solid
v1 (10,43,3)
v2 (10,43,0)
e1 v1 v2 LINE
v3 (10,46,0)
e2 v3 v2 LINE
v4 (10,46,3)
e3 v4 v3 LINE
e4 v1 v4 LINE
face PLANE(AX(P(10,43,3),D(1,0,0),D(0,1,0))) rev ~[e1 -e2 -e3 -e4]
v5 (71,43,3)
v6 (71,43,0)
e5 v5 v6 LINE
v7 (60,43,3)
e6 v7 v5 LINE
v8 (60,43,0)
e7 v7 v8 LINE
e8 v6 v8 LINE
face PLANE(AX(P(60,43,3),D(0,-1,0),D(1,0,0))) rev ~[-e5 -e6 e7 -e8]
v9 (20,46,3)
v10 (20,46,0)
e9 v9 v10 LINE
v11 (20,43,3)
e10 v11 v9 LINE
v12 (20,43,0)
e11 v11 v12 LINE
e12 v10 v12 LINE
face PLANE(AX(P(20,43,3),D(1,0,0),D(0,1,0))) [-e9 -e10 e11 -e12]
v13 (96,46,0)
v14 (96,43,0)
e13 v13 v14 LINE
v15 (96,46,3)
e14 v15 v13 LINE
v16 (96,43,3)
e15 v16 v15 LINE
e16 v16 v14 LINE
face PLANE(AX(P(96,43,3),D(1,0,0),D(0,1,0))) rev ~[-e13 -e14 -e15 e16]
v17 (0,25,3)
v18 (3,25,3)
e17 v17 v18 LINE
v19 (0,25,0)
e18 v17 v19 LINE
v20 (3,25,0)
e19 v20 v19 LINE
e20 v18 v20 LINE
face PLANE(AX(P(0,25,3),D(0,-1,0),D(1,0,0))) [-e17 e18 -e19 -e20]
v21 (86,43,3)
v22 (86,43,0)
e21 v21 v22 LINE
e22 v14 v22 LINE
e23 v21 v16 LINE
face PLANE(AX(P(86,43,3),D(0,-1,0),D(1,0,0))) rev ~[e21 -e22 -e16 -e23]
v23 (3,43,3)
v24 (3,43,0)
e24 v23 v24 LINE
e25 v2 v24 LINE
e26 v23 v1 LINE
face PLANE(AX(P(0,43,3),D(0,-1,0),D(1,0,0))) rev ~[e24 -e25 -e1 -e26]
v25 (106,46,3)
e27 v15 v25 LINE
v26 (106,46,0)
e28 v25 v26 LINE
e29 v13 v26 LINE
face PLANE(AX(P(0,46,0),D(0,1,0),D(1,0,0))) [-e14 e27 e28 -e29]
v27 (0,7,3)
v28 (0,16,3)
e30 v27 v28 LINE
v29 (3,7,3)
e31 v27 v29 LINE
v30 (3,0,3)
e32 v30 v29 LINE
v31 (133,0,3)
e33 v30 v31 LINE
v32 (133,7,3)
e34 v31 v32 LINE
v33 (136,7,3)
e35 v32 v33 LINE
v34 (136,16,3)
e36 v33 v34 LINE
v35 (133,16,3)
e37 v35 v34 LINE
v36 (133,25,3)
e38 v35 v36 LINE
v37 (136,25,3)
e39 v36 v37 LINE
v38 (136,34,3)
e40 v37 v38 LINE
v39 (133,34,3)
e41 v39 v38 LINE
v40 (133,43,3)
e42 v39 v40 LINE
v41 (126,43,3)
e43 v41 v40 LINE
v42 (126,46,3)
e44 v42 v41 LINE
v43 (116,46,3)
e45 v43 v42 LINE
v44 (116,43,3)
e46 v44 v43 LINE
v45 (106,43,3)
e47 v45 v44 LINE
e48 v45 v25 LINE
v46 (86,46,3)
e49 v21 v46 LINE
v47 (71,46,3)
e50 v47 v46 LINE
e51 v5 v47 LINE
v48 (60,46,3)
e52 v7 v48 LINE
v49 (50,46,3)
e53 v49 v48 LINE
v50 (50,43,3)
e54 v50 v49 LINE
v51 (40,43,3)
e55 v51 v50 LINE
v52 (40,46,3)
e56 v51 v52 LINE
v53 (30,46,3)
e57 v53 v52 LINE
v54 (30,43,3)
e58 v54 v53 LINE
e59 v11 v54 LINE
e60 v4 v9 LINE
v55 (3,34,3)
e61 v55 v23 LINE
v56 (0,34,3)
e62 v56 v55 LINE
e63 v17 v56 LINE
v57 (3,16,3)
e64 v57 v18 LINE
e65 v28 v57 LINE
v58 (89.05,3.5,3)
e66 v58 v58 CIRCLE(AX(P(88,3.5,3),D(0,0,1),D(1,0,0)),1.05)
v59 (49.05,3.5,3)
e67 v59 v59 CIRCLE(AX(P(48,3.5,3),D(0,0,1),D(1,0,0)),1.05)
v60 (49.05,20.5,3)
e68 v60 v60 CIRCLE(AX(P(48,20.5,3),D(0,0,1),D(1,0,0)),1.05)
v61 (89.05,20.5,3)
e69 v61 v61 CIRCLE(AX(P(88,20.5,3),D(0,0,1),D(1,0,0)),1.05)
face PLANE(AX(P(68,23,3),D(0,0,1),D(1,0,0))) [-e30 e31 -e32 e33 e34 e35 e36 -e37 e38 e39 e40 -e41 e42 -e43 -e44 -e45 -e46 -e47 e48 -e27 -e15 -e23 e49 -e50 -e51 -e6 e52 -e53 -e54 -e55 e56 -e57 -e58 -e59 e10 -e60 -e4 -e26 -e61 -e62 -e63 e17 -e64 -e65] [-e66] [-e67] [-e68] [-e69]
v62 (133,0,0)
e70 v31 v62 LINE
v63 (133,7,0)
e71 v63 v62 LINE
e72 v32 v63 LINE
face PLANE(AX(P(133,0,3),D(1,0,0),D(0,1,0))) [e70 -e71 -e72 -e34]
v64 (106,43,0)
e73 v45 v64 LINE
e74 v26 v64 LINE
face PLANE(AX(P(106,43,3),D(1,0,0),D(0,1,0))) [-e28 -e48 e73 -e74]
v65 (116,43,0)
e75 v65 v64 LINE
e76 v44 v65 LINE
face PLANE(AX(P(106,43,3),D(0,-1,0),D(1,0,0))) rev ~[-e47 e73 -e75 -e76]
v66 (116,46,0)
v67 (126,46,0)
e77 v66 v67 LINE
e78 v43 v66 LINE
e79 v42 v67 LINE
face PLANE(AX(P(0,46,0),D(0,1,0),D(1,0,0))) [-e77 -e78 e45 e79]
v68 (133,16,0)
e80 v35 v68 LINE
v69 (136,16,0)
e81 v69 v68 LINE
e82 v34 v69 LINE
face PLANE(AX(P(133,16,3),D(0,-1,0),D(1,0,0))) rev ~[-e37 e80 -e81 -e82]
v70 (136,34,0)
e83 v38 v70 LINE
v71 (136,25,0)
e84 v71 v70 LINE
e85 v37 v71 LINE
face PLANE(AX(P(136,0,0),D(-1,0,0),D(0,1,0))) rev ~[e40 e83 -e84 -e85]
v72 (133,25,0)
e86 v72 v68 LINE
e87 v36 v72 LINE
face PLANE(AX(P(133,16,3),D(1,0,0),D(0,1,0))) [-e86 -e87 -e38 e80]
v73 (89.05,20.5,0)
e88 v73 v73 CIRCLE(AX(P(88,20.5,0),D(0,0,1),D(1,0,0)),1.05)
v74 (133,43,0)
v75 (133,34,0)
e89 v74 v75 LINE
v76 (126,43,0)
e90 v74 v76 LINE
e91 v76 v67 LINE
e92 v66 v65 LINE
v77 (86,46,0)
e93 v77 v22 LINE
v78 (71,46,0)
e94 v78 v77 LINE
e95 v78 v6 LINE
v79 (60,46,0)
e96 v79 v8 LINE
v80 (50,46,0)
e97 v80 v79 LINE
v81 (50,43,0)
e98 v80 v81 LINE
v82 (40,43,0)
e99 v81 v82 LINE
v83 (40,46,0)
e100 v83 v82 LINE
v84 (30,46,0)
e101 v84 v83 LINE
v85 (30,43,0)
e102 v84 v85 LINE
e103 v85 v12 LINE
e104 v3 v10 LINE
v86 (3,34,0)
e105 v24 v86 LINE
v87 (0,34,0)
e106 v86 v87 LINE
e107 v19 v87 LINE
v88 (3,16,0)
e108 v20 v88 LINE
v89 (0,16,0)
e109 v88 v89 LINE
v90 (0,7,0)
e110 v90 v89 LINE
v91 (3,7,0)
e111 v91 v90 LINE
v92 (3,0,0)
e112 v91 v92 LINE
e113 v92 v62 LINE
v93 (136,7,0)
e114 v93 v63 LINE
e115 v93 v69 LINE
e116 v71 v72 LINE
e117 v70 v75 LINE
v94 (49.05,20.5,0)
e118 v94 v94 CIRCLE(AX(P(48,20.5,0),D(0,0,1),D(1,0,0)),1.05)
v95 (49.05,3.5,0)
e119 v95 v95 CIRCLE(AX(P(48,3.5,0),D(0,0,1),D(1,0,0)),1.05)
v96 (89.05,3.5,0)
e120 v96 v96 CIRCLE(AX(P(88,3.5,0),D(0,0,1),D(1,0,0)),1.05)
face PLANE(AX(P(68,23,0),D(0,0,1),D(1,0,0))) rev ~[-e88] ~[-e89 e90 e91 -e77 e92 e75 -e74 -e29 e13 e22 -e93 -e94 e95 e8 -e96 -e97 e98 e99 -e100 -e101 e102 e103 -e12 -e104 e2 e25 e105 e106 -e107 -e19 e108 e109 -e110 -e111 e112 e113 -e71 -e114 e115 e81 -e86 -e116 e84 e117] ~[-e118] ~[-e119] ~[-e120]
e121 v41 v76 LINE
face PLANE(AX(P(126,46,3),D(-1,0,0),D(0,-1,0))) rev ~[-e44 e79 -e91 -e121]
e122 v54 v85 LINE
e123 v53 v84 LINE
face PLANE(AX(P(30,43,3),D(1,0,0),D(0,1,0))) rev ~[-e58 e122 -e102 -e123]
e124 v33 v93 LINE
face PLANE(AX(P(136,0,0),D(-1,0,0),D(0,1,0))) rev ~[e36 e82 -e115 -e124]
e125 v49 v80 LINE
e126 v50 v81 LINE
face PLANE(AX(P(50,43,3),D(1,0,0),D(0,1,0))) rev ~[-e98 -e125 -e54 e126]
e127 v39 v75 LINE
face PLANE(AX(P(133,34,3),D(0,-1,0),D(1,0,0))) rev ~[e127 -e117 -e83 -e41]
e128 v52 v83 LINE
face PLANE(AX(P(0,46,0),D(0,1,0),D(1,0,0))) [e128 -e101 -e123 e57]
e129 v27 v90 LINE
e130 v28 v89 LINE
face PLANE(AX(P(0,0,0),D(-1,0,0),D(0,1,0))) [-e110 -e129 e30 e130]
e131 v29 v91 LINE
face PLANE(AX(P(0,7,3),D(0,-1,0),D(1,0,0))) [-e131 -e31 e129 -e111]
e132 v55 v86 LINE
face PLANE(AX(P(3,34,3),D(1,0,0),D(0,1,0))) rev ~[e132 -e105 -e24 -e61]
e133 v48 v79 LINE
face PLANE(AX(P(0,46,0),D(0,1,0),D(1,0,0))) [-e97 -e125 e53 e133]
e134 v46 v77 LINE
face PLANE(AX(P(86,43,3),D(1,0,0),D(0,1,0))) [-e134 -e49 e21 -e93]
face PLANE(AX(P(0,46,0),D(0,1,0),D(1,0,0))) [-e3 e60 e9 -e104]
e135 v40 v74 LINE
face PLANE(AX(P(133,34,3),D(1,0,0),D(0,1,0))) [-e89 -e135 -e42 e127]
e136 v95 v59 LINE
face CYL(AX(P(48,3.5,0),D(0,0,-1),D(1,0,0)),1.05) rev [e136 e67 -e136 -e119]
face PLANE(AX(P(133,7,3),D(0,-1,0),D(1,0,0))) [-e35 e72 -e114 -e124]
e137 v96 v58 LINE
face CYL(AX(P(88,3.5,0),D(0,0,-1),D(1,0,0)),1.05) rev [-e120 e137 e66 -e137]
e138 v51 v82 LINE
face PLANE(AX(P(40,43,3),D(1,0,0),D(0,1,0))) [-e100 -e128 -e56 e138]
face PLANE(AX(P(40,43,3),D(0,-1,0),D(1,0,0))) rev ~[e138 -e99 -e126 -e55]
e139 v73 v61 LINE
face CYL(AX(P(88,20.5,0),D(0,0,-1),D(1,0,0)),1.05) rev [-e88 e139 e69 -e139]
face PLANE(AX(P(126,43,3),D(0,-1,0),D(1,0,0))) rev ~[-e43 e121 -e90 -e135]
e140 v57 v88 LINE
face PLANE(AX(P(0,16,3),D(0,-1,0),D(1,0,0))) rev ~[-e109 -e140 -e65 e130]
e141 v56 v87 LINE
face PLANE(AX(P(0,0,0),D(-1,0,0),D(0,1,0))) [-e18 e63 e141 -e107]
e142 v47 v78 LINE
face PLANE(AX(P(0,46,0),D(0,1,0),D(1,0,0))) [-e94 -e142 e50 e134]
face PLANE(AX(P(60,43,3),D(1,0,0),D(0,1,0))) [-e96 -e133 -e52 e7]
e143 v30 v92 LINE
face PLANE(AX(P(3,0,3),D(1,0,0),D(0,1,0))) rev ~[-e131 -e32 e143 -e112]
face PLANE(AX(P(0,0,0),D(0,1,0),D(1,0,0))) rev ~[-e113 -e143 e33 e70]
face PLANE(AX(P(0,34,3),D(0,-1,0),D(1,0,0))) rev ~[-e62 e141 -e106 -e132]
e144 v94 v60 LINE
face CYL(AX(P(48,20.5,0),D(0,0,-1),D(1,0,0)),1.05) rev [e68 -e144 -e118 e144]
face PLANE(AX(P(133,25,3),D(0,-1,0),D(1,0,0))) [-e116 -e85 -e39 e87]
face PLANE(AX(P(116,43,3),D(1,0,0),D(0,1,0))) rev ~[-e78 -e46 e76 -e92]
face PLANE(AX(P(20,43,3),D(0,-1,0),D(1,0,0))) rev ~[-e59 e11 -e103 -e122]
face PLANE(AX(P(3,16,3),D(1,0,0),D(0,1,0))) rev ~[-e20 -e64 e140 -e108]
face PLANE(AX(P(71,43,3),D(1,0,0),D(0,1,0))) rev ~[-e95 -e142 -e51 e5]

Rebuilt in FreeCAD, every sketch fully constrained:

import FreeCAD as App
import Part
import Sketcher
Q = App.Units.Quantity

doc = App.newDocument("Part")
params = doc.addObject("Spreadsheet::Sheet", "Params")
for row, (alias, value) in enumerate([
    ("sketch1_diameter", "2.1 mm"),
    ("sketch1_width", "136 mm"),
    ("sketch1_height", "46 mm"),
    ("pad1_length", "3 mm"),
    ("sketch2_width", "10 mm"),
    ("sketch2_height", "3 mm"),
    ("sketch3_width", "3 mm"),
    ("sketch3_height", "9 mm"),
    ("sketch4_width", "3 mm"),
    ("sketch4_height", "9 mm"),
    ("sketch5_width", "3 mm"),
    ("sketch5_height", "7 mm"),
    ("sketch6_width", "10 mm"),
    ("sketch6_height", "3 mm"),
    ("sketch7_width", "10 mm"),
    ("sketch7_height", "3 mm"),
    ("sketch8_width", "11 mm"),
    ("sketch8_height", "3 mm"),
    ("sketch9_width", "10 mm"),
    ("sketch9_height", "3 mm"),
    ("sketch10_width", "10 mm"),
    ("sketch10_height", "3 mm"),
    ("sketch11_width", "10 mm"),
    ("sketch11_height", "3 mm"),
    ("sketch12_width", "3 mm"),
    ("sketch12_height", "9 mm"),
    ("sketch13_width", "3 mm"),
    ("sketch13_height", "9 mm"),
    ("sketch14_width", "3 mm"),
    ("sketch14_height", "7 mm"),
], start=1):
    params.set(f"A{row}", alias)
    params.set(f"B{row}", "=" + value)
    params.setAlias(f"B{row}", alias)

body = doc.addObject("PartDesign::Body", "Body")

# Sketch on XY plane
sketch1 = body.newObject("Sketcher::SketchObject", "Sketch")
sketch1.AttachmentSupport = (doc.getObject("XY_Plane"), [""])
sketch1.MapMode = "FlatFace"
sketch1.addGeometry([
    Part.LineSegment(App.Vector(0, 46, 0), App.Vector(0, 0, 0)),  # 0
    Part.LineSegment(App.Vector(0, 0, 0), App.Vector(136, 0, 0)),  # 1
    Part.LineSegment(App.Vector(136, 0, 0), App.Vector(136, 46, 0)),  # 2
    Part.LineSegment(App.Vector(136, 46, 0), App.Vector(0, 46, 0)),  # 3
    Part.Circle(App.Vector(48, 3.5, 0), App.Vector(0, 0, 1), 1.05),  # 4
    Part.Circle(App.Vector(88, 3.5, 0), App.Vector(0, 0, 1), 1.05),  # 5
    Part.Circle(App.Vector(48, 20.5, 0), App.Vector(0, 0, 1), 1.05),  # 6
    Part.Circle(App.Vector(88, 20.5, 0), App.Vector(0, 0, 1), 1.05),  # 7
], False)
sketch1.addConstraint([
    Sketcher.Constraint("Coincident", 0, 2, 1, 1),
    Sketcher.Constraint("Coincident", 1, 2, 2, 1),
    Sketcher.Constraint("Coincident", 2, 2, 3, 1),
    Sketcher.Constraint("Coincident", 3, 2, 0, 1),
    Sketcher.Constraint("Vertical", 0),
    Sketcher.Constraint("Horizontal", 1),
    Sketcher.Constraint("Vertical", 2),
    Sketcher.Constraint("Horizontal", 3),
    Sketcher.Constraint("Coincident", 0, 2, -1, 1),
    Sketcher.Constraint("Equal", 4, 5),
    Sketcher.Constraint("Equal", 5, 6),
    Sketcher.Constraint("Equal", 6, 7),
    Sketcher.Constraint("Horizontal", 4, 3, 5, 3),
    Sketcher.Constraint("Horizontal", 6, 3, 7, 3),
    Sketcher.Constraint("Vertical", 4, 3, 6, 3),
    Sketcher.Constraint("Vertical", 5, 3, 7, 3),
    Sketcher.Constraint("Diameter", 4, Q("2.1 mm")),
    Sketcher.Constraint("DistanceX", 1, 1, 1, 2, Q("136 mm")),
    Sketcher.Constraint("DistanceY", 0, 2, 0, 1, Q("46 mm")),
    Sketcher.Constraint("DistanceX", -1, 1, 4, 3, Q("48 mm")),
    Sketcher.Constraint("DistanceX", -1, 1, 5, 3, Q("88 mm")),
    Sketcher.Constraint("DistanceY", 4, 3, 6, 3, Q("17 mm")),
    Sketcher.Constraint("DistanceY", -1, 1, 4, 3, Q("3.5 mm")),
])
sketch1.setExpression("Constraints[16]", "Params.sketch1_diameter")
sketch1.setExpression("Constraints[17]", "Params.sketch1_width")
sketch1.setExpression("Constraints[18]", "Params.sketch1_height")
pad1 = body.newObject("PartDesign::Pad", "Pad")
pad1.Profile = sketch1
pad1.setExpression("Length", "Params.pad1_length")

# Sketch on XY plane
sketch2 = body.newObject("Sketcher::SketchObject", "Sketch001")
sketch2.AttachmentSupport = (doc.getObject("XY_Plane"), [""])
sketch2.MapMode = "FlatFace"
sketch2.AttachmentOffset = App.Placement(App.Vector(0, 0, 3), App.Rotation())
sketch2.addGeometry([
    Part.LineSegment(App.Vector(0, 46, 0), App.Vector(0, 43, 0)),
    Part.LineSegment(App.Vector(0, 43, 0), App.Vector(10, 43, 0)),
    Part.LineSegment(App.Vector(10, 43, 0), App.Vector(10, 46, 0)),
    Part.LineSegment(App.Vector(10, 46, 0), App.Vector(0, 46, 0)),
], False)
sketch2.addConstraint([
    Sketcher.Constraint("Coincident", 0, 2, 1, 1),
    Sketcher.Constraint("Coincident", 1, 2, 2, 1),
    Sketcher.Constraint("Coincident", 2, 2, 3, 1),
    Sketcher.Constraint("Coincident", 3, 2, 0, 1),
    Sketcher.Constraint("Vertical", 0),
    Sketcher.Constraint("Horizontal", 1),
    Sketcher.Constraint("Vertical", 2),
    Sketcher.Constraint("Horizontal", 3),
    Sketcher.Constraint("PointOnObject", 0, 2, -2),
    Sketcher.Constraint("DistanceX", 1, 1, 1, 2, Q("10 mm")),
    Sketcher.Constraint("DistanceY", 0, 2, 0, 1, Q("3 mm")),
    Sketcher.Constraint("DistanceY", -1, 1, 0, 2, Q("43 mm")),
])
sketch2.setExpression("Constraints[9]", "Params.sketch2_width")
sketch2.setExpression("Constraints[10]", "Params.sketch2_height")
pocket1 = body.newObject("PartDesign::Pocket", "Pocket")
pocket1.Profile = sketch2
pocket1.Type = "UpToFirst"

# Sketch on XY plane
sketch3 = body.newObject("Sketcher::SketchObject", "Sketch002")
sketch3.AttachmentSupport = (doc.getObject("XY_Plane"), [""])
sketch3.MapMode = "FlatFace"
sketch3.AttachmentOffset = App.Placement(App.Vector(0, 0, 3), App.Rotation())
sketch3.addGeometry([
    Part.LineSegment(App.Vector(0, 43, 0), App.Vector(0, 34, 0)),
    Part.LineSegment(App.Vector(0, 34, 0), App.Vector(3, 34, 0)),
    Part.LineSegment(App.Vector(3, 34, 0), App.Vector(3, 43, 0)),
    Part.LineSegment(App.Vector(3, 43, 0), App.Vector(0, 43, 0)),
], False)
sketch3.addConstraint([
    Sketcher.Constraint("Coincident", 0, 2, 1, 1),
    Sketcher.Constraint("Coincident", 1, 2, 2, 1),
    Sketcher.Constraint("Coincident", 2, 2, 3, 1),
    Sketcher.Constraint("Coincident", 3, 2, 0, 1),
    Sketcher.Constraint("Vertical", 0),
    Sketcher.Constraint("Horizontal", 1),
    Sketcher.Constraint("Vertical", 2),
    Sketcher.Constraint("Horizontal", 3),
    Sketcher.Constraint("PointOnObject", 0, 2, -2),
    Sketcher.Constraint("DistanceX", 1, 1, 1, 2, Q("3 mm")),
    Sketcher.Constraint("DistanceY", 0, 2, 0, 1, Q("9 mm")),
    Sketcher.Constraint("DistanceY", -1, 1, 0, 2, Q("34 mm")),
])
sketch3.setExpression("Constraints[9]", "Params.sketch3_width")
sketch3.setExpression("Constraints[10]", "Params.sketch3_height")
pocket2 = body.newObject("PartDesign::Pocket", "Pocket001")
pocket2.Profile = sketch3
pocket2.Type = "UpToFirst"

# Sketch on XY plane
sketch4 = body.newObject("Sketcher::SketchObject", "Sketch003")
sketch4.AttachmentSupport = (doc.getObject("XY_Plane"), [""])
sketch4.MapMode = "FlatFace"
sketch4.AttachmentOffset = App.Placement(App.Vector(0, 0, 3), App.Rotation())
sketch4.addGeometry([
    Part.LineSegment(App.Vector(0, 25, 0), App.Vector(0, 16, 0)),
    Part.LineSegment(App.Vector(0, 16, 0), App.Vector(3, 16, 0)),
    Part.LineSegment(App.Vector(3, 16, 0), App.Vector(3, 25, 0)),
    Part.LineSegment(App.Vector(3, 25, 0), App.Vector(0, 25, 0)),
], False)
sketch4.addConstraint([
    Sketcher.Constraint("Coincident", 0, 2, 1, 1),
    Sketcher.Constraint("Coincident", 1, 2, 2, 1),
    Sketcher.Constraint("Coincident", 2, 2, 3, 1),
    Sketcher.Constraint("Coincident", 3, 2, 0, 1),
    Sketcher.Constraint("Vertical", 0),
    Sketcher.Constraint("Horizontal", 1),
    Sketcher.Constraint("Vertical", 2),
    Sketcher.Constraint("Horizontal", 3),
    Sketcher.Constraint("PointOnObject", 0, 2, -2),
    Sketcher.Constraint("DistanceX", 1, 1, 1, 2, Q("3 mm")),
    Sketcher.Constraint("DistanceY", 0, 2, 0, 1, Q("9 mm")),
    Sketcher.Constraint("DistanceY", -1, 1, 0, 2, Q("16 mm")),
])
sketch4.setExpression("Constraints[9]", "Params.sketch4_width")
sketch4.setExpression("Constraints[10]", "Params.sketch4_height")
pocket3 = body.newObject("PartDesign::Pocket", "Pocket002")
pocket3.Profile = sketch4
pocket3.Type = "UpToFirst"

# Sketch on XY plane
sketch5 = body.newObject("Sketcher::SketchObject", "Sketch004")
sketch5.AttachmentSupport = (doc.getObject("XY_Plane"), [""])
sketch5.MapMode = "FlatFace"
sketch5.AttachmentOffset = App.Placement(App.Vector(0, 0, 3), App.Rotation())
sketch5.addGeometry([
    Part.LineSegment(App.Vector(0, 7, 0), App.Vector(0, 0, 0)),
    Part.LineSegment(App.Vector(0, 0, 0), App.Vector(3, 0, 0)),
    Part.LineSegment(App.Vector(3, 0, 0), App.Vector(3, 7, 0)),
    Part.LineSegment(App.Vector(3, 7, 0), App.Vector(0, 7, 0)),
], False)
sketch5.addConstraint([
    Sketcher.Constraint("Coincident", 0, 2, 1, 1),
    Sketcher.Constraint("Coincident", 1, 2, 2, 1),
    Sketcher.Constraint("Coincident", 2, 2, 3, 1),
    Sketcher.Constraint("Coincident", 3, 2, 0, 1),
    Sketcher.Constraint("Vertical", 0),
    Sketcher.Constraint("Horizontal", 1),
    Sketcher.Constraint("Vertical", 2),
    Sketcher.Constraint("Horizontal", 3),
    Sketcher.Constraint("Coincident", 0, 2, -1, 1),
    Sketcher.Constraint("DistanceX", 1, 1, 1, 2, Q("3 mm")),
    Sketcher.Constraint("DistanceY", 0, 2, 0, 1, Q("7 mm")),
])
sketch5.setExpression("Constraints[9]", "Params.sketch5_width")
sketch5.setExpression("Constraints[10]", "Params.sketch5_height")
pocket4 = body.newObject("PartDesign::Pocket", "Pocket003")
pocket4.Profile = sketch5
pocket4.Type = "UpToFirst"

# Sketch on XY plane
sketch6 = body.newObject("Sketcher::SketchObject", "Sketch005")
sketch6.AttachmentSupport = (doc.getObject("XY_Plane"), [""])
sketch6.MapMode = "FlatFace"
sketch6.AttachmentOffset = App.Placement(App.Vector(0, 0, 3), App.Rotation())
sketch6.addGeometry([
    Part.LineSegment(App.Vector(20, 46, 0), App.Vector(20, 43, 0)),
    Part.LineSegment(App.Vector(20, 43, 0), App.Vector(30, 43, 0)),
    Part.LineSegment(App.Vector(30, 43, 0), App.Vector(30, 46, 0)),
    Part.LineSegment(App.Vector(30, 46, 0), App.Vector(20, 46, 0)),
], False)
sketch6.addConstraint([
    Sketcher.Constraint("Coincident", 0, 2, 1, 1),
    Sketcher.Constraint("Coincident", 1, 2, 2, 1),
    Sketcher.Constraint("Coincident", 2, 2, 3, 1),
    Sketcher.Constraint("Coincident", 3, 2, 0, 1),
    Sketcher.Constraint("Vertical", 0),
    Sketcher.Constraint("Horizontal", 1),
    Sketcher.Constraint("Vertical", 2),
    Sketcher.Constraint("Horizontal", 3),
    Sketcher.Constraint("DistanceX", 1, 1, 1, 2, Q("10 mm")),
    Sketcher.Constraint("DistanceY", 0, 2, 0, 1, Q("3 mm")),
    Sketcher.Constraint("DistanceX", -1, 1, 0, 2, Q("20 mm")),
    Sketcher.Constraint("DistanceY", -1, 1, 0, 2, Q("43 mm")),
])
sketch6.setExpression("Constraints[8]", "Params.sketch6_width")
sketch6.setExpression("Constraints[9]", "Params.sketch6_height")
pocket5 = body.newObject("PartDesign::Pocket", "Pocket004")
pocket5.Profile = sketch6
pocket5.Type = "UpToFirst"

# Sketch on XY plane
sketch7 = body.newObject("Sketcher::SketchObject", "Sketch006")
sketch7.AttachmentSupport = (doc.getObject("XY_Plane"), [""])
sketch7.MapMode = "FlatFace"
sketch7.AttachmentOffset = App.Placement(App.Vector(0, 0, 3), App.Rotation())
sketch7.addGeometry([
    Part.LineSegment(App.Vector(40, 46, 0), App.Vector(40, 43, 0)),
    Part.LineSegment(App.Vector(40, 43, 0), App.Vector(50, 43, 0)),
    Part.LineSegment(App.Vector(50, 43, 0), App.Vector(50, 46, 0)),
    Part.LineSegment(App.Vector(50, 46, 0), App.Vector(40, 46, 0)),
], False)
sketch7.addConstraint([
    Sketcher.Constraint("Coincident", 0, 2, 1, 1),
    Sketcher.Constraint("Coincident", 1, 2, 2, 1),
    Sketcher.Constraint("Coincident", 2, 2, 3, 1),
    Sketcher.Constraint("Coincident", 3, 2, 0, 1),
    Sketcher.Constraint("Vertical", 0),
    Sketcher.Constraint("Horizontal", 1),
    Sketcher.Constraint("Vertical", 2),
    Sketcher.Constraint("Horizontal", 3),
    Sketcher.Constraint("DistanceX", 1, 1, 1, 2, Q("10 mm")),
    Sketcher.Constraint("DistanceY", 0, 2, 0, 1, Q("3 mm")),
    Sketcher.Constraint("DistanceX", -1, 1, 0, 2, Q("40 mm")),
    Sketcher.Constraint("DistanceY", -1, 1, 0, 2, Q("43 mm")),
])
sketch7.setExpression("Constraints[8]", "Params.sketch7_width")
sketch7.setExpression("Constraints[9]", "Params.sketch7_height")
pocket6 = body.newObject("PartDesign::Pocket", "Pocket005")
pocket6.Profile = sketch7
pocket6.Type = "UpToFirst"

# Sketch on XY plane
sketch8 = body.newObject("Sketcher::SketchObject", "Sketch007")
sketch8.AttachmentSupport = (doc.getObject("XY_Plane"), [""])
sketch8.MapMode = "FlatFace"
sketch8.AttachmentOffset = App.Placement(App.Vector(0, 0, 3), App.Rotation())
sketch8.addGeometry([
    Part.LineSegment(App.Vector(60, 46, 0), App.Vector(60, 43, 0)),
    Part.LineSegment(App.Vector(60, 43, 0), App.Vector(71, 43, 0)),
    Part.LineSegment(App.Vector(71, 43, 0), App.Vector(71, 46, 0)),
    Part.LineSegment(App.Vector(71, 46, 0), App.Vector(60, 46, 0)),
], False)
sketch8.addConstraint([
    Sketcher.Constraint("Coincident", 0, 2, 1, 1),
    Sketcher.Constraint("Coincident", 1, 2, 2, 1),
    Sketcher.Constraint("Coincident", 2, 2, 3, 1),
    Sketcher.Constraint("Coincident", 3, 2, 0, 1),
    Sketcher.Constraint("Vertical", 0),
    Sketcher.Constraint("Horizontal", 1),
    Sketcher.Constraint("Vertical", 2),
    Sketcher.Constraint("Horizontal", 3),
    Sketcher.Constraint("DistanceX", 1, 1, 1, 2, Q("11 mm")),
    Sketcher.Constraint("DistanceY", 0, 2, 0, 1, Q("3 mm")),
    Sketcher.Constraint("DistanceX", -1, 1, 0, 2, Q("60 mm")),
    Sketcher.Constraint("DistanceY", -1, 1, 0, 2, Q("43 mm")),
])
sketch8.setExpression("Constraints[8]", "Params.sketch8_width")
sketch8.setExpression("Constraints[9]", "Params.sketch8_height")
pocket7 = body.newObject("PartDesign::Pocket", "Pocket006")
pocket7.Profile = sketch8
pocket7.Type = "UpToFirst"

# Sketch on XY plane
sketch9 = body.newObject("Sketcher::SketchObject", "Sketch008")
sketch9.AttachmentSupport = (doc.getObject("XY_Plane"), [""])
sketch9.MapMode = "FlatFace"
sketch9.AttachmentOffset = App.Placement(App.Vector(0, 0, 3), App.Rotation())
sketch9.addGeometry([
    Part.LineSegment(App.Vector(86, 46, 0), App.Vector(86, 43, 0)),
    Part.LineSegment(App.Vector(86, 43, 0), App.Vector(96, 43, 0)),
    Part.LineSegment(App.Vector(96, 43, 0), App.Vector(96, 46, 0)),
    Part.LineSegment(App.Vector(96, 46, 0), App.Vector(86, 46, 0)),
], False)
sketch9.addConstraint([
    Sketcher.Constraint("Coincident", 0, 2, 1, 1),
    Sketcher.Constraint("Coincident", 1, 2, 2, 1),
    Sketcher.Constraint("Coincident", 2, 2, 3, 1),
    Sketcher.Constraint("Coincident", 3, 2, 0, 1),
    Sketcher.Constraint("Vertical", 0),
    Sketcher.Constraint("Horizontal", 1),
    Sketcher.Constraint("Vertical", 2),
    Sketcher.Constraint("Horizontal", 3),
    Sketcher.Constraint("DistanceX", 1, 1, 1, 2, Q("10 mm")),
    Sketcher.Constraint("DistanceY", 0, 2, 0, 1, Q("3 mm")),
    Sketcher.Constraint("DistanceX", -1, 1, 0, 2, Q("86 mm")),
    Sketcher.Constraint("DistanceY", -1, 1, 0, 2, Q("43 mm")),
])
sketch9.setExpression("Constraints[8]", "Params.sketch9_width")
sketch9.setExpression("Constraints[9]", "Params.sketch9_height")
pocket8 = body.newObject("PartDesign::Pocket", "Pocket007")
pocket8.Profile = sketch9
pocket8.Type = "UpToFirst"

# Sketch on XY plane
sketch10 = body.newObject("Sketcher::SketchObject", "Sketch009")
sketch10.AttachmentSupport = (doc.getObject("XY_Plane"), [""])
sketch10.MapMode = "FlatFace"
sketch10.AttachmentOffset = App.Placement(App.Vector(0, 0, 3), App.Rotation())
sketch10.addGeometry([
    Part.LineSegment(App.Vector(106, 46, 0), App.Vector(106, 43, 0)),
    Part.LineSegment(App.Vector(106, 43, 0), App.Vector(116, 43, 0)),
    Part.LineSegment(App.Vector(116, 43, 0), App.Vector(116, 46, 0)),
    Part.LineSegment(App.Vector(116, 46, 0), App.Vector(106, 46, 0)),
], False)
sketch10.addConstraint([
    Sketcher.Constraint("Coincident", 0, 2, 1, 1),
    Sketcher.Constraint("Coincident", 1, 2, 2, 1),
    Sketcher.Constraint("Coincident", 2, 2, 3, 1),
    Sketcher.Constraint("Coincident", 3, 2, 0, 1),
    Sketcher.Constraint("Vertical", 0),
    Sketcher.Constraint("Horizontal", 1),
    Sketcher.Constraint("Vertical", 2),
    Sketcher.Constraint("Horizontal", 3),
    Sketcher.Constraint("DistanceX", 1, 1, 1, 2, Q("10 mm")),
    Sketcher.Constraint("DistanceY", 0, 2, 0, 1, Q("3 mm")),
    Sketcher.Constraint("DistanceX", -1, 1, 0, 2, Q("106 mm")),
    Sketcher.Constraint("DistanceY", -1, 1, 0, 2, Q("43 mm")),
])
sketch10.setExpression("Constraints[8]", "Params.sketch10_width")
sketch10.setExpression("Constraints[9]", "Params.sketch10_height")
pocket9 = body.newObject("PartDesign::Pocket", "Pocket008")
pocket9.Profile = sketch10
pocket9.Type = "UpToFirst"

# Sketch on XY plane
sketch11 = body.newObject("Sketcher::SketchObject", "Sketch010")
sketch11.AttachmentSupport = (doc.getObject("XY_Plane"), [""])
sketch11.MapMode = "FlatFace"
sketch11.AttachmentOffset = App.Placement(App.Vector(0, 0, 3), App.Rotation())
sketch11.addGeometry([
    Part.LineSegment(App.Vector(136, 43, 0), App.Vector(136, 46, 0)),
    Part.LineSegment(App.Vector(136, 46, 0), App.Vector(126, 46, 0)),
    Part.LineSegment(App.Vector(126, 46, 0), App.Vector(126, 43, 0)),
    Part.LineSegment(App.Vector(126, 43, 0), App.Vector(136, 43, 0)),
], False)
sketch11.addConstraint([
    Sketcher.Constraint("Coincident", 0, 2, 1, 1),
    Sketcher.Constraint("Coincident", 1, 2, 2, 1),
    Sketcher.Constraint("Coincident", 2, 2, 3, 1),
    Sketcher.Constraint("Coincident", 3, 2, 0, 1),
    Sketcher.Constraint("Vertical", 0),
    Sketcher.Constraint("Horizontal", 1),
    Sketcher.Constraint("Vertical", 2),
    Sketcher.Constraint("Horizontal", 3),
    Sketcher.Constraint("DistanceX", 1, 2, 1, 1, Q("10 mm")),
    Sketcher.Constraint("DistanceY", 0, 1, 0, 2, Q("3 mm")),
    Sketcher.Constraint("DistanceX", -1, 1, 0, 2, Q("136 mm")),
    Sketcher.Constraint("DistanceY", -1, 1, 0, 2, Q("46 mm")),
])
sketch11.setExpression("Constraints[8]", "Params.sketch11_width")
sketch11.setExpression("Constraints[9]", "Params.sketch11_height")
pocket10 = body.newObject("PartDesign::Pocket", "Pocket009")
pocket10.Profile = sketch11
pocket10.Type = "UpToFirst"

# Sketch on XY plane
sketch12 = body.newObject("Sketcher::SketchObject", "Sketch011")
sketch12.AttachmentSupport = (doc.getObject("XY_Plane"), [""])
sketch12.MapMode = "FlatFace"
sketch12.AttachmentOffset = App.Placement(App.Vector(0, 0, 3), App.Rotation())
sketch12.addGeometry([
    Part.LineSegment(App.Vector(133, 43, 0), App.Vector(133, 34, 0)),
    Part.LineSegment(App.Vector(133, 34, 0), App.Vector(136, 34, 0)),
    Part.LineSegment(App.Vector(136, 34, 0), App.Vector(136, 43, 0)),
    Part.LineSegment(App.Vector(136, 43, 0), App.Vector(133, 43, 0)),
], False)
sketch12.addConstraint([
    Sketcher.Constraint("Coincident", 0, 2, 1, 1),
    Sketcher.Constraint("Coincident", 1, 2, 2, 1),
    Sketcher.Constraint("Coincident", 2, 2, 3, 1),
    Sketcher.Constraint("Coincident", 3, 2, 0, 1),
    Sketcher.Constraint("Vertical", 0),
    Sketcher.Constraint("Horizontal", 1),
    Sketcher.Constraint("Vertical", 2),
    Sketcher.Constraint("Horizontal", 3),
    Sketcher.Constraint("DistanceX", 1, 1, 1, 2, Q("3 mm")),
    Sketcher.Constraint("DistanceY", 0, 2, 0, 1, Q("9 mm")),
    Sketcher.Constraint("DistanceX", -1, 1, 0, 2, Q("133 mm")),
    Sketcher.Constraint("DistanceY", -1, 1, 0, 2, Q("34 mm")),
])
sketch12.setExpression("Constraints[8]", "Params.sketch12_width")
sketch12.setExpression("Constraints[9]", "Params.sketch12_height")
pocket11 = body.newObject("PartDesign::Pocket", "Pocket010")
pocket11.Profile = sketch12
pocket11.Type = "UpToFirst"

# Sketch on XY plane
sketch13 = body.newObject("Sketcher::SketchObject", "Sketch012")
sketch13.AttachmentSupport = (doc.getObject("XY_Plane"), [""])
sketch13.MapMode = "FlatFace"
sketch13.AttachmentOffset = App.Placement(App.Vector(0, 0, 3), App.Rotation())
sketch13.addGeometry([
    Part.LineSegment(App.Vector(133, 25, 0), App.Vector(133, 16, 0)),
    Part.LineSegment(App.Vector(133, 16, 0), App.Vector(136, 16, 0)),
    Part.LineSegment(App.Vector(136, 16, 0), App.Vector(136, 25, 0)),
    Part.LineSegment(App.Vector(136, 25, 0), App.Vector(133, 25, 0)),
], False)
sketch13.addConstraint([
    Sketcher.Constraint("Coincident", 0, 2, 1, 1),
    Sketcher.Constraint("Coincident", 1, 2, 2, 1),
    Sketcher.Constraint("Coincident", 2, 2, 3, 1),
    Sketcher.Constraint("Coincident", 3, 2, 0, 1),
    Sketcher.Constraint("Vertical", 0),
    Sketcher.Constraint("Horizontal", 1),
    Sketcher.Constraint("Vertical", 2),
    Sketcher.Constraint("Horizontal", 3),
    Sketcher.Constraint("DistanceX", 1, 1, 1, 2, Q("3 mm")),
    Sketcher.Constraint("DistanceY", 0, 2, 0, 1, Q("9 mm")),
    Sketcher.Constraint("DistanceX", -1, 1, 0, 2, Q("133 mm")),
    Sketcher.Constraint("DistanceY", -1, 1, 0, 2, Q("16 mm")),
])
sketch13.setExpression("Constraints[8]", "Params.sketch13_width")
sketch13.setExpression("Constraints[9]", "Params.sketch13_height")
pocket12 = body.newObject("PartDesign::Pocket", "Pocket011")
pocket12.Profile = sketch13
pocket12.Type = "UpToFirst"

# Sketch on XY plane
sketch14 = body.newObject("Sketcher::SketchObject", "Sketch013")
sketch14.AttachmentSupport = (doc.getObject("XY_Plane"), [""])
sketch14.MapMode = "FlatFace"
sketch14.AttachmentOffset = App.Placement(App.Vector(0, 0, 3), App.Rotation())
sketch14.addGeometry([
    Part.LineSegment(App.Vector(133, 7, 0), App.Vector(133, 0, 0)),
    Part.LineSegment(App.Vector(133, 0, 0), App.Vector(136, 0, 0)),
    Part.LineSegment(App.Vector(136, 0, 0), App.Vector(136, 7, 0)),
    Part.LineSegment(App.Vector(136, 7, 0), App.Vector(133, 7, 0)),
], False)
sketch14.addConstraint([
    Sketcher.Constraint("Coincident", 0, 2, 1, 1),
    Sketcher.Constraint("Coincident", 1, 2, 2, 1),
    Sketcher.Constraint("Coincident", 2, 2, 3, 1),
    Sketcher.Constraint("Coincident", 3, 2, 0, 1),
    Sketcher.Constraint("Vertical", 0),
    Sketcher.Constraint("Horizontal", 1),
    Sketcher.Constraint("Vertical", 2),
    Sketcher.Constraint("Horizontal", 3),
    Sketcher.Constraint("PointOnObject", 0, 2, -1),
    Sketcher.Constraint("DistanceX", 1, 1, 1, 2, Q("3 mm")),
    Sketcher.Constraint("DistanceY", 0, 2, 0, 1, Q("7 mm")),
    Sketcher.Constraint("DistanceX", -1, 1, 0, 2, Q("133 mm")),
])
sketch14.setExpression("Constraints[9]", "Params.sketch14_width")
sketch14.setExpression("Constraints[10]", "Params.sketch14_height")
pocket13 = body.newObject("PartDesign::Pocket", "Pocket012")
pocket13.Profile = sketch14
pocket13.Type = "UpToFirst"

doc.recompute()
